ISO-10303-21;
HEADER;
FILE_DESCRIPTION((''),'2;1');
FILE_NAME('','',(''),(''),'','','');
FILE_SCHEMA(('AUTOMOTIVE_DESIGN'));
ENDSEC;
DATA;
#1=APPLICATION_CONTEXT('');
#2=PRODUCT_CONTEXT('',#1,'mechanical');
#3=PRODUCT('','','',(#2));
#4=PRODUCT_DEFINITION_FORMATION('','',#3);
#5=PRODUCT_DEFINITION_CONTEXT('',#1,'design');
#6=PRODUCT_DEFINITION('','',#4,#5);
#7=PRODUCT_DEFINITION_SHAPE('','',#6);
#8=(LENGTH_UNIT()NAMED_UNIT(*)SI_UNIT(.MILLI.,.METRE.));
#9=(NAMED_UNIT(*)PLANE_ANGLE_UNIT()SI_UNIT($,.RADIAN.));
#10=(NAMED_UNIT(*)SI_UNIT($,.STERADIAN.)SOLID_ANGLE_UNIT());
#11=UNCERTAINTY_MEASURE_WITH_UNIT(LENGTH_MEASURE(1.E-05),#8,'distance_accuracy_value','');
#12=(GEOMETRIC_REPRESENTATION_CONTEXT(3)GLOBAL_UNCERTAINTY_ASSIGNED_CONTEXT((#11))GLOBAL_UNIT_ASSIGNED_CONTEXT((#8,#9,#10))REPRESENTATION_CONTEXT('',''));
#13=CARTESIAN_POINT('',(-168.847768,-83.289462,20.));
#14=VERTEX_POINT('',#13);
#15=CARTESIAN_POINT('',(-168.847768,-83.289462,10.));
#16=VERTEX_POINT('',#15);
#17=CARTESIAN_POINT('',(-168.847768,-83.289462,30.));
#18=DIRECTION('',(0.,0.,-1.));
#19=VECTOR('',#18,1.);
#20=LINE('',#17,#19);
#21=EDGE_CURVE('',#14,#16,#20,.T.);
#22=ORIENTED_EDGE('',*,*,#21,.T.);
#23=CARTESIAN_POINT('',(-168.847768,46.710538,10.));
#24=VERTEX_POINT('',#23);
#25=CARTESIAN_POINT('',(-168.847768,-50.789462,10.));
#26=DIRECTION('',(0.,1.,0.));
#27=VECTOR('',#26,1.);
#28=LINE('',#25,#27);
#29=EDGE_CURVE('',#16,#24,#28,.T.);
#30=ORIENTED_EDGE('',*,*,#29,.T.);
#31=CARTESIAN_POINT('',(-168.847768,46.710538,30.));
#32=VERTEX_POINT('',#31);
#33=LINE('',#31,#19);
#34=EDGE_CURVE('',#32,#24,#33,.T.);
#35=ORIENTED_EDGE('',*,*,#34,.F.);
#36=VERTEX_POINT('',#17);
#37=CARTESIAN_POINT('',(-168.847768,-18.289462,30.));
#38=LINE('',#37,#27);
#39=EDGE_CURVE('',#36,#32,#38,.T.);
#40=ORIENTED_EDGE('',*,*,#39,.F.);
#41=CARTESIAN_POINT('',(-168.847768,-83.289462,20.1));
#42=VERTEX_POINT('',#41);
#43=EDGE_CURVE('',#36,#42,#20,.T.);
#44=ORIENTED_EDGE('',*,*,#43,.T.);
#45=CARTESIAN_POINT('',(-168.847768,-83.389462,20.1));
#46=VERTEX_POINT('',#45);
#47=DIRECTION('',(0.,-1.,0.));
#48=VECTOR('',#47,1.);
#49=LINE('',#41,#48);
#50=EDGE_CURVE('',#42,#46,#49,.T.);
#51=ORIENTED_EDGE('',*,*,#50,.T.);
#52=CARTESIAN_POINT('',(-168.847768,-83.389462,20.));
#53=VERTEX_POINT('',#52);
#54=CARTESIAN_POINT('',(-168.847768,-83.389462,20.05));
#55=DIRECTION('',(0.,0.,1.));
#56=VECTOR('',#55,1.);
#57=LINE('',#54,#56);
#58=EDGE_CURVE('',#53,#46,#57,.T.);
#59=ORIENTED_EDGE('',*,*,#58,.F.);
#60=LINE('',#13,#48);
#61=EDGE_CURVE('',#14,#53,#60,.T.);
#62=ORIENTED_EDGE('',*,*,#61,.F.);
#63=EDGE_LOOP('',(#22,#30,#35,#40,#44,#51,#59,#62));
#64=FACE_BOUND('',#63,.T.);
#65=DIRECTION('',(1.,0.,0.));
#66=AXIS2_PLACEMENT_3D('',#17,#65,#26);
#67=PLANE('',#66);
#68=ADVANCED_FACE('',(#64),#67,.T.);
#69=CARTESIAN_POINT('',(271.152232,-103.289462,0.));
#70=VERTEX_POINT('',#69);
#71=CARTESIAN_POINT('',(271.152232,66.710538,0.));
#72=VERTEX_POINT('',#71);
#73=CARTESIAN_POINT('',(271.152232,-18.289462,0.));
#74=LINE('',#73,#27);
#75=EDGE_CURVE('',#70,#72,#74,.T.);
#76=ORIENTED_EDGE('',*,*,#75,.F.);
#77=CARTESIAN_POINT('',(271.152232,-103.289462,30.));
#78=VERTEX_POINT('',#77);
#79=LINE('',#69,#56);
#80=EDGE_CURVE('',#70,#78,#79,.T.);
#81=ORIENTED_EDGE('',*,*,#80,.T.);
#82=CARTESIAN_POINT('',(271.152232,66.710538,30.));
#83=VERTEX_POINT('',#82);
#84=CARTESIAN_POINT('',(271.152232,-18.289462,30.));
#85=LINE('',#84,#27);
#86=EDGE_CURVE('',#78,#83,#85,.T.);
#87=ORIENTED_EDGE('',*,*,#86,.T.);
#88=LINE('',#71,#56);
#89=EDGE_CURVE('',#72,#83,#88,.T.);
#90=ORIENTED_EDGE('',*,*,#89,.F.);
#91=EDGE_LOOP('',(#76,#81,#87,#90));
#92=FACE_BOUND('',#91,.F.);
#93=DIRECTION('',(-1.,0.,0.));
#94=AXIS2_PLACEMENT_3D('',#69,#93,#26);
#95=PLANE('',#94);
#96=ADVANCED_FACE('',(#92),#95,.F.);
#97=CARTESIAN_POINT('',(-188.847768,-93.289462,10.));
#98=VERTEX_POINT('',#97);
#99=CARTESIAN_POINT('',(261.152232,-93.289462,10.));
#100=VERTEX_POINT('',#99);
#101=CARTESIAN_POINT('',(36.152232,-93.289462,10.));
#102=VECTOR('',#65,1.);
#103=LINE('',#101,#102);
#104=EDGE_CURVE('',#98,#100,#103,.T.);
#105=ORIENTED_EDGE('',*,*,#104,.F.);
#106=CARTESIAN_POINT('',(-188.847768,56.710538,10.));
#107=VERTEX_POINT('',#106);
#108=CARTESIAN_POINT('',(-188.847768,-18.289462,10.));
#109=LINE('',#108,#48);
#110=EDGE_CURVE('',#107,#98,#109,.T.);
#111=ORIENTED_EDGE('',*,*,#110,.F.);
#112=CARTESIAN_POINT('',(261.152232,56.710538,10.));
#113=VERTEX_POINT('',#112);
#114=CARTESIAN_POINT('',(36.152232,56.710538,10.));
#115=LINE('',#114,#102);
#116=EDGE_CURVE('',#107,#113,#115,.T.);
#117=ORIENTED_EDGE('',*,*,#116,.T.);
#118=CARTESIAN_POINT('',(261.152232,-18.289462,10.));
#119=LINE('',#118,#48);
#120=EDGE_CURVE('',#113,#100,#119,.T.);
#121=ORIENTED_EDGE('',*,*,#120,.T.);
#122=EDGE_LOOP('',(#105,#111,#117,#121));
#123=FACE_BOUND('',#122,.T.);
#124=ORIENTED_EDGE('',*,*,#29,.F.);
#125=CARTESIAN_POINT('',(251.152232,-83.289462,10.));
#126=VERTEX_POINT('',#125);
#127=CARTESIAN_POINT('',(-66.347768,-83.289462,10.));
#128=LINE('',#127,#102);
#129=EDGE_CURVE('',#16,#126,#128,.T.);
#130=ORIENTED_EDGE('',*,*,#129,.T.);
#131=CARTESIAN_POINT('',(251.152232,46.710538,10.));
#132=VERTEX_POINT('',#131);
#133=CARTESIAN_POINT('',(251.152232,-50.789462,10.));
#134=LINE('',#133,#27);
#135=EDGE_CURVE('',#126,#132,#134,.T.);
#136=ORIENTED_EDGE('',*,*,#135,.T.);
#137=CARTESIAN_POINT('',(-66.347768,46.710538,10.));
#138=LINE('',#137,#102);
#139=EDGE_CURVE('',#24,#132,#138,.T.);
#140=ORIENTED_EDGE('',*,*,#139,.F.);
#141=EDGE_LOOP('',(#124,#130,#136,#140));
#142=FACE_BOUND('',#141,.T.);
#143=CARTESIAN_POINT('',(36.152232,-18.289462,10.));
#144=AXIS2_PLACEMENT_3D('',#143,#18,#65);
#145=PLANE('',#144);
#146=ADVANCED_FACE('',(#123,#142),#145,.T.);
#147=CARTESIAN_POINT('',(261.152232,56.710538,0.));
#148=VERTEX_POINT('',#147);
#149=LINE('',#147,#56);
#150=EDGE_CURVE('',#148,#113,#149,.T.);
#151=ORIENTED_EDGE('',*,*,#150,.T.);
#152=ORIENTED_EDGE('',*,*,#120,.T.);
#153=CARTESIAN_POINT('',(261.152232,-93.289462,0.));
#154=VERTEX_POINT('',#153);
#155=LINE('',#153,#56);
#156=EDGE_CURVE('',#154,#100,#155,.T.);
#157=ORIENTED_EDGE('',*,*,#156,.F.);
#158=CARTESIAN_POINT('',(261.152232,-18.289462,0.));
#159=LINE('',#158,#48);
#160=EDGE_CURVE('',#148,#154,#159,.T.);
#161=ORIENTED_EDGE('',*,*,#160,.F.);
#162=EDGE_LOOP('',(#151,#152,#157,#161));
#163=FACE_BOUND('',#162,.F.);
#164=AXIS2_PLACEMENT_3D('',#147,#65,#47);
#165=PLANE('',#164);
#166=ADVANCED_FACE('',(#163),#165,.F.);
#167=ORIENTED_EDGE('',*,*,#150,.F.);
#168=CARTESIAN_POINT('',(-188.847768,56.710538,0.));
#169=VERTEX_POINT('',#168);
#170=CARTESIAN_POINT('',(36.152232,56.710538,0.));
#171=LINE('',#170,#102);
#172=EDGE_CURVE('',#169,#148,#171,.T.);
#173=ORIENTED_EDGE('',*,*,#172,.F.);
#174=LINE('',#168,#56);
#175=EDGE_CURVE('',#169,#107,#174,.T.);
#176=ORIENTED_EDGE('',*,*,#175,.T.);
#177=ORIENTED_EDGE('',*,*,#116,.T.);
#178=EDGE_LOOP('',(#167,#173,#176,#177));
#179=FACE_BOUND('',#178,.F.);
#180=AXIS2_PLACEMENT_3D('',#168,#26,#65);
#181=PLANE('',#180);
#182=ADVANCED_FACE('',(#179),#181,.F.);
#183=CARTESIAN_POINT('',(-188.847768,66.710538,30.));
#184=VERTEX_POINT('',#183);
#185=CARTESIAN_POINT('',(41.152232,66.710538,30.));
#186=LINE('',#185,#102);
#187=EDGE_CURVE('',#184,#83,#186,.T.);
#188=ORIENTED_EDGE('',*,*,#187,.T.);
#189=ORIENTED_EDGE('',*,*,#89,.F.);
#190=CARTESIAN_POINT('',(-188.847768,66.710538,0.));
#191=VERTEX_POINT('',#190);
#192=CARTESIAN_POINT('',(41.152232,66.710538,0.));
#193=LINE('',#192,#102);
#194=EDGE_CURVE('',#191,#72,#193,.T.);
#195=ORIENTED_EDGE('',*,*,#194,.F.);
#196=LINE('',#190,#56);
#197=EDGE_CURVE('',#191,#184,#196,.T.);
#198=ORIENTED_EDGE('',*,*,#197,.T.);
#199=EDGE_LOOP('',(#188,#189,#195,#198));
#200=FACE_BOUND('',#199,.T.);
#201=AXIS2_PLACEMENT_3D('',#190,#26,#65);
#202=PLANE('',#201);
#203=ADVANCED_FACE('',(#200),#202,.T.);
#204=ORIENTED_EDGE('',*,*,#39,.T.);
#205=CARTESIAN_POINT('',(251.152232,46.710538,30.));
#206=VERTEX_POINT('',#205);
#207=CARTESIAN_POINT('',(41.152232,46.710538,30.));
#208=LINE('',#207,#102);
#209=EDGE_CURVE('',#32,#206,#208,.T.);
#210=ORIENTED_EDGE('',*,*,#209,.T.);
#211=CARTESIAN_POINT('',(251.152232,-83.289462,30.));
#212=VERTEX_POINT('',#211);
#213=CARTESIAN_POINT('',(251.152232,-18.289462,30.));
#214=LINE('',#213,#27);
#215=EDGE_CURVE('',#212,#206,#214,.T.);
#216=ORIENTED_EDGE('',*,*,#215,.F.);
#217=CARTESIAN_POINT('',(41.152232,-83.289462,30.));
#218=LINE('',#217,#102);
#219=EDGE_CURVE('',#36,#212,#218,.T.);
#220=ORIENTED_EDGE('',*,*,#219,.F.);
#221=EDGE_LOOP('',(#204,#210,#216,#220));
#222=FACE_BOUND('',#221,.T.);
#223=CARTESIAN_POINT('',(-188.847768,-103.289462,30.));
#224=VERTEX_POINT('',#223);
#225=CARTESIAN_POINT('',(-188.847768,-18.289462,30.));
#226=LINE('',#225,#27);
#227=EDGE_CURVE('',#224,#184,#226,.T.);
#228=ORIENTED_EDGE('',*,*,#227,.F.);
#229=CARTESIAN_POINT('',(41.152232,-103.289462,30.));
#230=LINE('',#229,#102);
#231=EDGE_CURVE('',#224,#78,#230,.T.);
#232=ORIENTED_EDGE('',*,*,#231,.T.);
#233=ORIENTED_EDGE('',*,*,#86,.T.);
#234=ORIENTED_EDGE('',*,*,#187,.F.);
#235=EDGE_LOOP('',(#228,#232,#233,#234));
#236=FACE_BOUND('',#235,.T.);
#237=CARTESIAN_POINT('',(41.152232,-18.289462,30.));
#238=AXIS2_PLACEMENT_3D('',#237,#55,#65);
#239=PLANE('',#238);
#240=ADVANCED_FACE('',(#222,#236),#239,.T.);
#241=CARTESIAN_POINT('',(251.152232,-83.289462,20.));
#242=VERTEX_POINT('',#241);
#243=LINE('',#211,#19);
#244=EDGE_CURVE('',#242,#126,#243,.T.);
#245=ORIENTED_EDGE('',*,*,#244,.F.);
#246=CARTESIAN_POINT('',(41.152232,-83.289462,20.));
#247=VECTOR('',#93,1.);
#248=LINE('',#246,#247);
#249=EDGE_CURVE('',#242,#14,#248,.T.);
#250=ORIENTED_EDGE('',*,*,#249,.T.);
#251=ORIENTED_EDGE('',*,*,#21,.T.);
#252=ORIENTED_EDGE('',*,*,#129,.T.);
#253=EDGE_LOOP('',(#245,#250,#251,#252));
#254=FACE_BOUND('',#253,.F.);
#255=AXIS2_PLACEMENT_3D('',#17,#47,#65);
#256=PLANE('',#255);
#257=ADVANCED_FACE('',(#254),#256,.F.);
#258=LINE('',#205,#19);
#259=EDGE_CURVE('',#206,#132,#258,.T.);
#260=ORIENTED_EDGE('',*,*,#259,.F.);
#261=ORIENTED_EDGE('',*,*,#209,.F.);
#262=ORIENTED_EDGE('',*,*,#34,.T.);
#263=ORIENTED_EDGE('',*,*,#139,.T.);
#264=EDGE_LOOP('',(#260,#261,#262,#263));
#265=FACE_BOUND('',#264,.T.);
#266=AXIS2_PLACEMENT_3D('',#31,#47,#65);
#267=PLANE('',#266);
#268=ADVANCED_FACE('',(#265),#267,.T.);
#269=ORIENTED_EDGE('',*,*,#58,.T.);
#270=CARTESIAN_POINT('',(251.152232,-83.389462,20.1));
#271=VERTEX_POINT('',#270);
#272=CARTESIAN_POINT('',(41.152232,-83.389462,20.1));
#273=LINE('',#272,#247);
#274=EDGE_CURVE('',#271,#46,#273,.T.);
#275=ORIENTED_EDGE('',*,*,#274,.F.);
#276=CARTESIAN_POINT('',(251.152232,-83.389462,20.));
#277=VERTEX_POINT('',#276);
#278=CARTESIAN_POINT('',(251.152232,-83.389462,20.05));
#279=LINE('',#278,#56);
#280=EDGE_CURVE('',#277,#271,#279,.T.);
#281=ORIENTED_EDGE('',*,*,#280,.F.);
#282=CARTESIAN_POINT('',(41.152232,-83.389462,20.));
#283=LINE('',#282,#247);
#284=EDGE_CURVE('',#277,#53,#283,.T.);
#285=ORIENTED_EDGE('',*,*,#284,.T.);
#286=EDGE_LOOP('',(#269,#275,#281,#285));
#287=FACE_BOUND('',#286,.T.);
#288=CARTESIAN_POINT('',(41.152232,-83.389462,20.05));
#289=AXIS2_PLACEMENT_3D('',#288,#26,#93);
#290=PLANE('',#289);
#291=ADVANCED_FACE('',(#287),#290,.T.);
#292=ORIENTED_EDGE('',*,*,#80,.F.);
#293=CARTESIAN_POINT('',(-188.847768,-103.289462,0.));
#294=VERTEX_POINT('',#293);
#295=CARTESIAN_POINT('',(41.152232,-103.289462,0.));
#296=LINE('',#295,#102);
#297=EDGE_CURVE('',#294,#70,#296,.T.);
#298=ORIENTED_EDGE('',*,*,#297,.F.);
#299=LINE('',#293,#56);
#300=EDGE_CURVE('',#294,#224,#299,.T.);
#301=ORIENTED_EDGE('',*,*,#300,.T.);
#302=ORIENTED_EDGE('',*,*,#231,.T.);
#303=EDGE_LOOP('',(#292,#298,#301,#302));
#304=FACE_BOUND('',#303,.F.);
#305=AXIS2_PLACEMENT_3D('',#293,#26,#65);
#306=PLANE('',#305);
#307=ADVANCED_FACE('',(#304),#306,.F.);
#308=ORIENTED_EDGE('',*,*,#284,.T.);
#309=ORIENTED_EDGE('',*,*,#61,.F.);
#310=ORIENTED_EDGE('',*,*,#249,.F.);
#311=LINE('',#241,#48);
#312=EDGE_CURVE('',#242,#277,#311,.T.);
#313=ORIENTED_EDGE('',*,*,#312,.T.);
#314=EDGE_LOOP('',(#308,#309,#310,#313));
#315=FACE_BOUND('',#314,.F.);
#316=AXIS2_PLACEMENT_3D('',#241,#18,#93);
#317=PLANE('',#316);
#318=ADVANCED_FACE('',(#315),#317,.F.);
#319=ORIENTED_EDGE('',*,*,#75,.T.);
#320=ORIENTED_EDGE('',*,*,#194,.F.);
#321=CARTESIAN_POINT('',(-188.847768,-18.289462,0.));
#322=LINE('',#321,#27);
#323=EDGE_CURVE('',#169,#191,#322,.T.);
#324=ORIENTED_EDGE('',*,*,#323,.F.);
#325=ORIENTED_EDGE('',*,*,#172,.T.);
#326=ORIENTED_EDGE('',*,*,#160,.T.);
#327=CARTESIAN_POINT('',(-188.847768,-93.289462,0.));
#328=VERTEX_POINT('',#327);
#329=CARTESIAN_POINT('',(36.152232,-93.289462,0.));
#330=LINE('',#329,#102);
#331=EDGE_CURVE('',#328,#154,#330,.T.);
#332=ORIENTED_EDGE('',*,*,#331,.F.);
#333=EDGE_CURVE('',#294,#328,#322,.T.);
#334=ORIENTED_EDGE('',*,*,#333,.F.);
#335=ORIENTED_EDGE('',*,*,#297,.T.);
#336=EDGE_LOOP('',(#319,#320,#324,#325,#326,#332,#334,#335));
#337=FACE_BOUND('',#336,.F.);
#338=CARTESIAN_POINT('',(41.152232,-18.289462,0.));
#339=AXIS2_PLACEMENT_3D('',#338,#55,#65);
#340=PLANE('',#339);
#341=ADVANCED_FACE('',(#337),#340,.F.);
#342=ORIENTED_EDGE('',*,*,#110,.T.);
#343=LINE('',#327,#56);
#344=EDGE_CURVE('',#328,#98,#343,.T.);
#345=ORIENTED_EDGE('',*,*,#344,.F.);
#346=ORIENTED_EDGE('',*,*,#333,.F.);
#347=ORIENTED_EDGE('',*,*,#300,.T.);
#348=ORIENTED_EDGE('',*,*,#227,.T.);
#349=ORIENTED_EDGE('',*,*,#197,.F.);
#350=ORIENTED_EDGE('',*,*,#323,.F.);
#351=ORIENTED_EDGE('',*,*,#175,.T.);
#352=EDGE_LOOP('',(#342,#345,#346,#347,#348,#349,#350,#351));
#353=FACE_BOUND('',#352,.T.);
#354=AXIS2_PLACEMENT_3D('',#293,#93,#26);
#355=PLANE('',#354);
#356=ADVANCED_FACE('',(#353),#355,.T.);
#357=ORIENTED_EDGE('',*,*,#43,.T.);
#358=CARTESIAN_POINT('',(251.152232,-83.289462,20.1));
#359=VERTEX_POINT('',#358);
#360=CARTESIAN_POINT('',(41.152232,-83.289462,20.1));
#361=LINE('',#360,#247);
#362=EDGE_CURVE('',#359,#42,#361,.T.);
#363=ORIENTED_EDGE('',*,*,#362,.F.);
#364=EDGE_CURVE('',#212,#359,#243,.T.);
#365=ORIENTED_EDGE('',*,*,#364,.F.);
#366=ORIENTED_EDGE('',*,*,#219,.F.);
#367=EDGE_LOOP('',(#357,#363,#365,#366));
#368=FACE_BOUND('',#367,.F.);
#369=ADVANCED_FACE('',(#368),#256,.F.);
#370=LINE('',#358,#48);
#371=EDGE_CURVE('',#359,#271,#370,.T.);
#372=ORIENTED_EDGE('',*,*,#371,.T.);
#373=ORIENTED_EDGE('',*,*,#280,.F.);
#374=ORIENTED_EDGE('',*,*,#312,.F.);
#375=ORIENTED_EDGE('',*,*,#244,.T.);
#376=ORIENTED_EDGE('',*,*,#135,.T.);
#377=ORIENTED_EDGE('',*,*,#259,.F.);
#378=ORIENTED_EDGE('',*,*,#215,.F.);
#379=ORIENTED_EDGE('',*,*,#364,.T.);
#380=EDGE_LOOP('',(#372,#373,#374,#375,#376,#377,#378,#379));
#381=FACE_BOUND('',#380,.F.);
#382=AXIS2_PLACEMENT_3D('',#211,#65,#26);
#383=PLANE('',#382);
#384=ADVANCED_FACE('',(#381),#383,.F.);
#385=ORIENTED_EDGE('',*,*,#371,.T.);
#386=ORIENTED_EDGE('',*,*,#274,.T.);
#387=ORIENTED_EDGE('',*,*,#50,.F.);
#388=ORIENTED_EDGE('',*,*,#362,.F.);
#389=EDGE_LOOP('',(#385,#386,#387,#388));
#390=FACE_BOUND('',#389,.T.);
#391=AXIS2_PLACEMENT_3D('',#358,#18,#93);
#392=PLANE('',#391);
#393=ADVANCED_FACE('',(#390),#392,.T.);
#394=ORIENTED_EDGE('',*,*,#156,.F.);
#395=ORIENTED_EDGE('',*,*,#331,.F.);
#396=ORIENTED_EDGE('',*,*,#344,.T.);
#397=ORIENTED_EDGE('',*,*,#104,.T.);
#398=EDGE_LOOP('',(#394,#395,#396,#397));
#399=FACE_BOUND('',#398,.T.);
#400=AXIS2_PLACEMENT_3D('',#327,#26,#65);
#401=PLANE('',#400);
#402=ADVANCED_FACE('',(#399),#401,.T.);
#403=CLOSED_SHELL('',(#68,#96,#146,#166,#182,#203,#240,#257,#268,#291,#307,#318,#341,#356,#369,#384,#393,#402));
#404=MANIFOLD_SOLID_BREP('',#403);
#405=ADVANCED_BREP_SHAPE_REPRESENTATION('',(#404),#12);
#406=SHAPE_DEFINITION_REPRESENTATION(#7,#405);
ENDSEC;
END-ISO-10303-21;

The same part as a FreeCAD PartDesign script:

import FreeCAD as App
import Part
import Sketcher

doc = App.newDocument("Part")
body = doc.addObject("PartDesign::Body", "Body")

sketch1 = body.newObject("Sketcher::SketchObject", "Sketch")
sketch1.AttachmentSupport = (doc.getObject("XY_Plane"), [""])
sketch1.MapMode = "FlatFace"
sketch1.addGeometry(Part.LineSegment(App.Vector(-189, 67, 0), App.Vector(-189, -103, 0)), False)
sketch1.addGeometry(Part.LineSegment(App.Vector(-189, -103, 0), App.Vector(271, -103, 0)), False)
sketch1.addGeometry(Part.LineSegment(App.Vector(271, -103, 0), App.Vector(271, 67, 0)), False)
sketch1.addGeometry(Part.LineSegment(App.Vector(271, 67, 0), App.Vector(-189, 67, 0)), False)
sketch1.addConstraint(Sketcher.Constraint("Coincident", 0, 2, 1, 1))
sketch1.addConstraint(Sketcher.Constraint("Coincident", 1, 2, 2, 1))
sketch1.addConstraint(Sketcher.Constraint("Coincident", 2, 2, 3, 1))
sketch1.addConstraint(Sketcher.Constraint("Coincident", 3, 2, 0, 1))
sketch1.addConstraint(Sketcher.Constraint("Vertical", 0))
sketch1.addConstraint(Sketcher.Constraint("Horizontal", 1))
sketch1.addConstraint(Sketcher.Constraint("Vertical", 2))
sketch1.addConstraint(Sketcher.Constraint("Horizontal", 3))
sketch1.addConstraint(Sketcher.Constraint("DistanceX", 1, 1, 1, 2, 460.0))
sketch1.addConstraint(Sketcher.Constraint("DistanceY", 0, 2, 0, 1, 170.0))
sketch1.addConstraint(Sketcher.Constraint("DistanceX", 0, 2, -1, 1, 188.847768))
sketch1.addConstraint(Sketcher.Constraint("DistanceY", 0, 2, -1, 1, 103.289462))
pad1 = body.newObject("PartDesign::Pad", "Pad")
pad1.Profile = sketch1
pad1.Length = 30

sketch2 = body.newObject("Sketcher::SketchObject", "Sketch001")
sketch2.AttachmentSupport = (doc.getObject("XY_Plane"), [""])
sketch2.MapMode = "FlatFace"
sketch2.AttachmentOffset = App.Placement(App.Vector(0, 0, 30), App.Rotation())
sketch2.addGeometry(Part.LineSegment(App.Vector(-169, 47, 0), App.Vector(-169, -83, 0)), False)
sketch2.addGeometry(Part.LineSegment(App.Vector(-169, -83, 0), App.Vector(251, -83, 0)), False)
sketch2.addGeometry(Part.LineSegment(App.Vector(251, -83, 0), App.Vector(251, 47, 0)), False)
sketch2.addGeometry(Part.LineSegment(App.Vector(251, 47, 0), App.Vector(-169, 47, 0)), False)
sketch2.addConstraint(Sketcher.Constraint("Coincident", 0, 2, 1, 1))
sketch2.addConstraint(Sketcher.Constraint("Coincident", 1, 2, 2, 1))
sketch2.addConstraint(Sketcher.Constraint("Coincident", 2, 2, 3, 1))
sketch2.addConstraint(Sketcher.Constraint("Coincident", 3, 2, 0, 1))
sketch2.addConstraint(Sketcher.Constraint("Vertical", 0))
sketch2.addConstraint(Sketcher.Constraint("Horizontal", 1))
sketch2.addConstraint(Sketcher.Constraint("Vertical", 2))
sketch2.addConstraint(Sketcher.Constraint("Horizontal", 3))
sketch2.addConstraint(Sketcher.Constraint("DistanceX", 1, 1, 1, 2, 420.0))
sketch2.addConstraint(Sketcher.Constraint("DistanceY", 0, 2, 0, 1, 130.0))
sketch2.addConstraint(Sketcher.Constraint("DistanceX", 0, 2, -1, 1, 168.847768))
sketch2.addConstraint(Sketcher.Constraint("DistanceY", 0, 2, -1, 1, 83.289462))
pocket1 = body.newObject("PartDesign::Pocket", "Pocket")
pocket1.Profile = sketch2
pocket1.Type = "ThroughAll"

sketch3 = body.newObject("Sketcher::SketchObject", "Sketch002")
sketch3.AttachmentSupport = (doc.getObject("XY_Plane"), [""])
sketch3.MapMode = "FlatFace"
sketch3.addGeometry(Part.LineSegment(App.Vector(-189, -93, 0), App.Vector(-189, 57, 0)), False)
sketch3.addGeometry(Part.LineSegment(App.Vector(-189, 57, 0), App.Vector(261, 57, 0)), False)
sketch3.addGeometry(Part.LineSegment(App.Vector(261, 57, 0), App.Vector(261, -93, 0)), False)
sketch3.addGeometry(Part.LineSegment(App.Vector(261, -93, 0), App.Vector(-189, -93, 0)), False)
sketch3.addConstraint(Sketcher.Constraint("Coincident", 0, 2, 1, 1))
sketch3.addConstraint(Sketcher.Constraint("Coincident", 1, 2, 2, 1))
sketch3.addConstraint(Sketcher.Constraint("Coincident", 2, 2, 3, 1))
sketch3.addConstraint(Sketcher.Constraint("Coincident", 3, 2, 0, 1))
sketch3.addConstraint(Sketcher.Constraint("Vertical", 0))
sketch3.addConstraint(Sketcher.Constraint("Horizontal", 1))
sketch3.addConstraint(Sketcher.Constraint("Vertical", 2))
sketch3.addConstraint(Sketcher.Constraint("Horizontal", 3))
sketch3.addConstraint(Sketcher.Constraint("DistanceX", 1, 1, 1, 2, 450.0))
sketch3.addConstraint(Sketcher.Constraint("DistanceY", 0, 1, 0, 2, 150.0))
sketch3.addConstraint(Sketcher.Constraint("DistanceX", 0, 2, -1, 1, 188.847768))
sketch3.addConstraint(Sketcher.Constraint("DistanceY", 2, 2, -1, 1, 93.289462))
pocket2 = body.newObject("PartDesign::Pocket", "Pocket001")
pocket2.Profile = sketch3
pocket2.Length = 10
pocket2.Reversed = True

sketch4 = body.newObject("Sketcher::SketchObject", "Sketch003")
sketch4.AttachmentSupport = (doc.getObject("XZ_Plane"), [""])
sketch4.MapMode = "FlatFace"
sketch4.AttachmentOffset = App.Placement(App.Vector(0, 0, 83.289462), App.Rotation())
sketch4.addGeometry(Part.LineSegment(App.Vector(251.15, 20.1, 0), App.Vector(251.15, 20, 0)), False)
sketch4.addGeometry(Part.LineSegment(App.Vector(251.15, 20, 0), App.Vector(-168.85, 20, 0)), False)
sketch4.addGeometry(Part.LineSegment(App.Vector(-168.85, 20, 0), App.Vector(-168.85, 20.1, 0)), False)
sketch4.addGeometry(Part.LineSegment(App.Vector(-168.85, 20.1, 0), App.Vector(251.15, 20.1, 0)), False)
sketch4.addConstraint(Sketcher.Constraint("Coincident", 0, 2, 1, 1))
sketch4.addConstraint(Sketcher.Constraint("Coincident", 1, 2, 2, 1))
sketch4.addConstraint(Sketcher.Constraint("Coincident", 2, 2, 3, 1))
sketch4.addConstraint(Sketcher.Constraint("Coincident", 3, 2, 0, 1))
sketch4.addConstraint(Sketcher.Constraint("Vertical", 0))
sketch4.addConstraint(Sketcher.Constraint("Horizontal", 1))
sketch4.addConstraint(Sketcher.Constraint("Vertical", 2))
sketch4.addConstraint(Sketcher.Constraint("Horizontal", 3))
sketch4.addConstraint(Sketcher.Constraint("DistanceX", 1, 2, 1, 1, 420.0))
sketch4.addConstraint(Sketcher.Constraint("DistanceY", 0, 2, 0, 1, 0.1))
sketch4.addConstraint(Sketcher.Constraint("DistanceY", -1, 1, 0, 2, 20.0))
sketch4.addConstraint(Sketcher.Constraint("DistanceX", -1, 1, 0, 2, 251.152232))
pocket3 = body.newObject("PartDesign::Pocket", "Pocket002")
pocket3.Profile = sketch4
pocket3.Length = 0.1
pocket3.Reversed = True

doc.recompute()
